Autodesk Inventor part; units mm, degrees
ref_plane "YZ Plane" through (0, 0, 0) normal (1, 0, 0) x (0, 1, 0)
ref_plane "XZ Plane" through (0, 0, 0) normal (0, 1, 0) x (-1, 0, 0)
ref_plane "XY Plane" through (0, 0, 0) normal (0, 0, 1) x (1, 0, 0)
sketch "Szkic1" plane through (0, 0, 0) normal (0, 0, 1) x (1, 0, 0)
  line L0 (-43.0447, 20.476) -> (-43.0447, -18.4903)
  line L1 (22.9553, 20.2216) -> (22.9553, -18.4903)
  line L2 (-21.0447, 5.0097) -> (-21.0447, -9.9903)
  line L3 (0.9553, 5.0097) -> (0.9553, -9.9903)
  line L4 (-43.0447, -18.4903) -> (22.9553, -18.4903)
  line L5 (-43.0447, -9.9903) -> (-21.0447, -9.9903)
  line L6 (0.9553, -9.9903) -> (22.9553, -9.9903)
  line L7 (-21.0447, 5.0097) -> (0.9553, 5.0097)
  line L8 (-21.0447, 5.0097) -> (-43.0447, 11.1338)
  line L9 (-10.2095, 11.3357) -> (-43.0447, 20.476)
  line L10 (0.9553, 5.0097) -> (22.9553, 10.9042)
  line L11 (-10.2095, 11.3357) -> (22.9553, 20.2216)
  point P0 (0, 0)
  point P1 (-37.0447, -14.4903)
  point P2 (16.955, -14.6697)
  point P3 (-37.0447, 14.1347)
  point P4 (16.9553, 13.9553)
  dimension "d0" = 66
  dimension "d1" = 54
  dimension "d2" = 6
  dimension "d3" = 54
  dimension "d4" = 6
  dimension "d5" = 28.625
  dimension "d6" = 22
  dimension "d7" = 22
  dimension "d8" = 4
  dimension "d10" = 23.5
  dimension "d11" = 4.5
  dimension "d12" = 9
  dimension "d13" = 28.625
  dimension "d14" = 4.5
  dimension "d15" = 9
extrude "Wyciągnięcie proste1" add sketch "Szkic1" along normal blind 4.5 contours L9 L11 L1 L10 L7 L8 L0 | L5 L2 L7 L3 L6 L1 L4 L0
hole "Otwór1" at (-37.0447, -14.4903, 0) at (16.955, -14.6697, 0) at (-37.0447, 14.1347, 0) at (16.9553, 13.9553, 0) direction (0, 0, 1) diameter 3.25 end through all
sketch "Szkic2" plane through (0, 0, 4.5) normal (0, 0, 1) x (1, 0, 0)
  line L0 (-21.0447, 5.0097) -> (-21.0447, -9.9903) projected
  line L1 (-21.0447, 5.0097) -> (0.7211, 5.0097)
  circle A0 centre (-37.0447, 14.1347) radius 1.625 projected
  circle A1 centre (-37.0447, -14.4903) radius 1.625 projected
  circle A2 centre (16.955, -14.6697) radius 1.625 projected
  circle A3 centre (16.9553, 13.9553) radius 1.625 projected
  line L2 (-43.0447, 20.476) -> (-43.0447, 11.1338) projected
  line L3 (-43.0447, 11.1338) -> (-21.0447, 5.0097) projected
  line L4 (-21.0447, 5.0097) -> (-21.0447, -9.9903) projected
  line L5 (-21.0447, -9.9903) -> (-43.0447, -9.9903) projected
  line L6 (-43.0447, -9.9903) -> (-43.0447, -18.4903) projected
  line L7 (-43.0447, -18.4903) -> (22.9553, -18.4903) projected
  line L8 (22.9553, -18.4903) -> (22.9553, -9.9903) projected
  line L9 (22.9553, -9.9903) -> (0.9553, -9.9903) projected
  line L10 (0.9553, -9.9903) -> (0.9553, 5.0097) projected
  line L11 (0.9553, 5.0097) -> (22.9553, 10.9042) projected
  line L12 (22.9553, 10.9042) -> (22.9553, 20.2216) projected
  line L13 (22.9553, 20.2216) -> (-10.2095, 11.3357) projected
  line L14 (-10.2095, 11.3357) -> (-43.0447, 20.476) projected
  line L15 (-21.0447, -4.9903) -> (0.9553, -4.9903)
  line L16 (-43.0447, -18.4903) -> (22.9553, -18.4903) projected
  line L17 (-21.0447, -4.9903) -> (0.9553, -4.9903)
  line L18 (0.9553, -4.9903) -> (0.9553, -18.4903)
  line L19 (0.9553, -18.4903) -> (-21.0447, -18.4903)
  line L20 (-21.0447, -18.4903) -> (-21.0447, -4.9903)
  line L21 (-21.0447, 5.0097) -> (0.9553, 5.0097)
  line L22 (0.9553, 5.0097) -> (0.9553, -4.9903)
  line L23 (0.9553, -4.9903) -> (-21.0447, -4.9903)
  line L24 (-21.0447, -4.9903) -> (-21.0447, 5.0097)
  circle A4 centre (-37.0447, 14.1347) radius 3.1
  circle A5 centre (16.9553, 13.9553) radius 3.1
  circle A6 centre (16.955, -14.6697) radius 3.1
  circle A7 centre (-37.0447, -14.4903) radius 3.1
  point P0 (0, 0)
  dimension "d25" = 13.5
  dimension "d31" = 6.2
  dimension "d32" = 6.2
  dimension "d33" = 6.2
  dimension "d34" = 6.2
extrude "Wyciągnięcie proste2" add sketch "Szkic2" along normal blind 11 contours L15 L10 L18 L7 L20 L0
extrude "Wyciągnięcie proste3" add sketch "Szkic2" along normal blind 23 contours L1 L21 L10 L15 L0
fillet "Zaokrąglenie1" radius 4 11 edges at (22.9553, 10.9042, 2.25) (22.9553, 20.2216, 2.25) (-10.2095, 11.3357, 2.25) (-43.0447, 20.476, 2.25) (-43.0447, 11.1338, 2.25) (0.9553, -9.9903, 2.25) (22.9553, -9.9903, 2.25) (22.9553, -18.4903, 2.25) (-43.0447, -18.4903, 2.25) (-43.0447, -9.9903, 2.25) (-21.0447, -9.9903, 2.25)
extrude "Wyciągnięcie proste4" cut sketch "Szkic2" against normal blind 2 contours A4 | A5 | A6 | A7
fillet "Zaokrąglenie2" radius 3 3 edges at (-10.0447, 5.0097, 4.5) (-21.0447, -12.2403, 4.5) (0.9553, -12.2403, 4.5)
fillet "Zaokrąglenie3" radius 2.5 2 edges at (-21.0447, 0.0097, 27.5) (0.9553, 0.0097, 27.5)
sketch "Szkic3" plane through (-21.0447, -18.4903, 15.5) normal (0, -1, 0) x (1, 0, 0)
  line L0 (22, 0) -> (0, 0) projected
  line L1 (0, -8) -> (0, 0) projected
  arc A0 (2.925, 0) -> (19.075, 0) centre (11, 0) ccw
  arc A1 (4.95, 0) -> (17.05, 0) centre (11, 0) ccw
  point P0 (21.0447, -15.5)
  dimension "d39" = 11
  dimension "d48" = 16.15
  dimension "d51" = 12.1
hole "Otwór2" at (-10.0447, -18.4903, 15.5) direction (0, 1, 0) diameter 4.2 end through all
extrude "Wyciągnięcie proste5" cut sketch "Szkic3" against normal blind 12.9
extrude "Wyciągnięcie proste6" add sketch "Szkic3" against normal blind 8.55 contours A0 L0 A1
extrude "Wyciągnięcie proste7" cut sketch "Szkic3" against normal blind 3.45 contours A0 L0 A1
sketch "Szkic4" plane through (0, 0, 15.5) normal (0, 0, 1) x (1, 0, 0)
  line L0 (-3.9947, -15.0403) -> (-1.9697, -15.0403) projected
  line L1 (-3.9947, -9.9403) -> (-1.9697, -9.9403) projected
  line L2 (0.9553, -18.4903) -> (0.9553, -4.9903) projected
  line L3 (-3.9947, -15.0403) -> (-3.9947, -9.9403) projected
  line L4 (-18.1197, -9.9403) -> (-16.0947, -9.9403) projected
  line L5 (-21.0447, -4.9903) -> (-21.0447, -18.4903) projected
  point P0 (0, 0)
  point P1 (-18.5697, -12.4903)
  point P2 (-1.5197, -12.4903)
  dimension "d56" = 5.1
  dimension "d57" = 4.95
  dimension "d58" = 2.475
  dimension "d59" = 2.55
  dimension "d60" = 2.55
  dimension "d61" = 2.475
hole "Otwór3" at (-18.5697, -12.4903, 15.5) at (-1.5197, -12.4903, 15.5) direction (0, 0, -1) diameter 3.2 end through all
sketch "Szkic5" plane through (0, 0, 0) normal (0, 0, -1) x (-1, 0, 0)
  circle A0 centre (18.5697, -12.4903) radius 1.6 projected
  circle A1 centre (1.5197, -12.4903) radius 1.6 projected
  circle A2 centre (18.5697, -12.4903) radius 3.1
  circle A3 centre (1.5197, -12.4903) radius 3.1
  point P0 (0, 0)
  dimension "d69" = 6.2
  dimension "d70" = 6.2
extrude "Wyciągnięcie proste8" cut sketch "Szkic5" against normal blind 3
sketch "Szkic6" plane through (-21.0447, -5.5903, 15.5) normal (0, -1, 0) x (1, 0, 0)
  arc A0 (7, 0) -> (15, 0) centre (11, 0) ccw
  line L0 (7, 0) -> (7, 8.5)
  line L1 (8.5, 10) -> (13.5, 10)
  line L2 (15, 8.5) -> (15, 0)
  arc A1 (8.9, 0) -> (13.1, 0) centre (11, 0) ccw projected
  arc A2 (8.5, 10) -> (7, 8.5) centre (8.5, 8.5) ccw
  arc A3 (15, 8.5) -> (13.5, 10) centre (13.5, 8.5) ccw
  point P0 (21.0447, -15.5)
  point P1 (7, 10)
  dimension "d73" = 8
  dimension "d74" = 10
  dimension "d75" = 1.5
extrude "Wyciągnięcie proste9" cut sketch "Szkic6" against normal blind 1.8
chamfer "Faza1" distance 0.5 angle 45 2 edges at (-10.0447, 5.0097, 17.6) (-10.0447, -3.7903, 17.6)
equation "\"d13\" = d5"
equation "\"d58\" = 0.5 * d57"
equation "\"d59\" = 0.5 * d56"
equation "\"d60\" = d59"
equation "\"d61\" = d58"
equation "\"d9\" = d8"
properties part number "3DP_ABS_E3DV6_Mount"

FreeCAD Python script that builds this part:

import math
import FreeCAD as App
import Part
import Sketcher
Q = App.Units.Quantity


def edges_at(feature, points):
    """Names of the edges that pass closest to the given points."""
    edges = feature.Shape.Edges
    near = lambda p: min(range(len(edges)), key=lambda i: edges[i].distToShape(Part.Vertex(*p))[0])
    return sorted({f"Edge{near(p) + 1}" for p in points})


def add_polygon(sketch, points):
    """Adds a closed chain of lines whose ends are joined by coincident constraints."""
    first, n = sketch.GeometryCount, len(points)
    for a, b in zip(points, points[1:] + points[:1]):
        sketch.addGeometry(Part.LineSegment(App.Vector(*a, 0), App.Vector(*b, 0)), False)
    for i in range(n):
        sketch.addConstraint(Sketcher.Constraint("Coincident", first + i, 2, first + (i + 1) % n, 1))

doc = App.newDocument("Part")
body = doc.addObject("PartDesign::Body", "Body")

# Sketch on XY plane
sketch1 = body.newObject("Sketcher::SketchObject", "Sketch")
sketch1.AttachmentSupport = (doc.getObject("XY_Plane"), [""])
sketch1.MapMode = "FlatFace"
add_polygon(sketch1, [(-10, 11), (-43, 20), (-43, 11), (-21, 5), (-21, -10), (-43, -10), (-43, -18), (23, -18), (23, -10), (1, -10), (1, 5), (23, 11), (23, 20)])  # lines 0-12
sketch1.addConstraint([
    Sketcher.Constraint("Vertical", 1),
    Sketcher.Constraint("Vertical", 3),
    Sketcher.Constraint("Horizontal", 4),
    Sketcher.Constraint("Vertical", 5),
    Sketcher.Constraint("Horizontal", 6),
    Sketcher.Constraint("Vertical", 7),
    Sketcher.Constraint("Horizontal", 8),
    Sketcher.Constraint("Vertical", 9),
    Sketcher.Constraint("Vertical", 11),
    Sketcher.Constraint("Parallel", 0, 2),
    Sketcher.Constraint("Parallel", 10, 12),
    Sketcher.Constraint("Horizontal", 4, 2, 7, 2),
    Sketcher.Constraint("Horizontal", 2, 2, 9, 2),
    Sketcher.Constraint("Vertical", 1, 2, 4, 2),
    Sketcher.Constraint("Vertical", 7, 2, 10, 2),
    Sketcher.Constraint("Equal", 4, 8),
    Sketcher.Constraint("DistanceX", 4, 2, 4, 1, Q("22 mm")),
    Sketcher.Constraint("DistanceX", 6, 1, 6, 2, Q("66 mm")),
    Sketcher.Constraint("DistanceY", 5, 2, 2, 2, Q("23.5 mm")),
    Sketcher.Constraint("DistanceY", 3, 2, 3, 1, Q("15 mm")),
    Sketcher.Constraint("Angle", 10, Q("14.999 deg")),
    Sketcher.Constraint("DistanceY", 1, 2, 1, 1, Q("9.3422 mm")),
    Sketcher.Constraint("DistanceY", 11, 1, 11, 2, Q("9.3174 mm")),
    Sketcher.Constraint("DistanceY", -1, 1, 0, 2, Q("20.476 mm")),
    Sketcher.Constraint("DistanceY", 2, 2, 1, 2, Q("6.124 mm")),
    Sketcher.Constraint("DistanceX", 0, 2, -1, 1, Q("43.0447 mm")),
])
pad1 = body.newObject("PartDesign::Pad", "Pad")
pad1.Profile = sketch1
pad1.Length = 4.5

# Sketch on XY plane
sketch2 = body.newObject("Sketcher::SketchObject", "Sketch001")
sketch2.AttachmentSupport = (doc.getObject("XY_Plane"), [""])
sketch2.MapMode = "FlatFace"
sketch2.addGeometry([
    Part.Circle(App.Vector(-37, -14.5, 0), App.Vector(0, 0, 1), 1.6),
    Part.Circle(App.Vector(17, -14.7, 0), App.Vector(0, 0, 1), 1.6),
    Part.Circle(App.Vector(-37, 14.1, 0), App.Vector(0, 0, 1), 1.6),
    Part.Circle(App.Vector(17, 14, 0), App.Vector(0, 0, 1), 1.6),
], False)
sketch2.addConstraint([
    Sketcher.Constraint("Equal", 0, 1),
    Sketcher.Constraint("Equal", 1, 2),
    Sketcher.Constraint("Equal", 2, 3),
    Sketcher.Constraint("Vertical", 0, 3, 2, 3),
    Sketcher.Constraint("Diameter", 0, Q("3.25 mm")),
    Sketcher.Constraint("DistanceX", 2, 3, 3, 3, Q("54 mm")),
    Sketcher.Constraint("DistanceX", -1, 1, 1, 3, Q("16.955 mm")),
    Sketcher.Constraint("DistanceY", 0, 3, 2, 3, Q("28.625 mm")),
    Sketcher.Constraint("DistanceY", 1, 3, 3, 3, Q("28.625 mm")),
    Sketcher.Constraint("DistanceX", 0, 3, -1, 1, Q("37.0447 mm")),
    Sketcher.Constraint("DistanceY", 0, 3, -1, 1, Q("14.4903 mm")),
    Sketcher.Constraint("DistanceY", 1, 3, -1, 1, Q("14.6697 mm")),
])
doc.recompute()
hole = body.newObject("PartDesign::Hole", "Hole")
hole.Profile = sketch2
hole.ThreadType = "None"
hole.Diameter = 3.25
hole.DepthType = "ThroughAll"
hole.Reversed = True

# Sketch on XY plane
sketch3 = body.newObject("Sketcher::SketchObject", "Sketch002")
sketch3.AttachmentSupport = (doc.getObject("XY_Plane"), [""])
sketch3.MapMode = "FlatFace"
sketch3.AttachmentOffset = App.Placement(App.Vector(0, 0, 4.5), App.Rotation())
add_polygon(sketch3, [(1, -5), (-21, -5), (-21, -18), (1, -18)])  # lines 0-3
sketch3.addConstraint([
    Sketcher.Constraint("Horizontal", 0),
    Sketcher.Constraint("Vertical", 1),
    Sketcher.Constraint("Horizontal", 2),
    Sketcher.Constraint("Vertical", 3),
    Sketcher.Constraint("DistanceY", 1, 2, 1, 1, Q("13.5 mm")),
    Sketcher.Constraint("DistanceX", 0, 2, 0, 1, Q("22 mm")),
    Sketcher.Constraint("DistanceX", 0, 2, -1, 1, Q("21.0447 mm")),
    Sketcher.Constraint("DistanceY", 0, 2, -1, 1, Q("4.9903 mm")),
])
pad2 = body.newObject("PartDesign::Pad", "Pad001")
pad2.Profile = sketch3
pad2.Length = 11

# Sketch on XY plane
sketch4 = body.newObject("Sketcher::SketchObject", "Sketch003")
sketch4.AttachmentSupport = (doc.getObject("XY_Plane"), [""])
sketch4.MapMode = "FlatFace"
sketch4.AttachmentOffset = App.Placement(App.Vector(0, 0, 4.5), App.Rotation())
add_polygon(sketch4, [(1, 5), (-21, 5), (-21, -5), (1, -5)])  # lines 0-3
sketch4.addConstraint([
    Sketcher.Constraint("Horizontal", 0),
    Sketcher.Constraint("Vertical", 1),
    Sketcher.Constraint("Horizontal", 2),
    Sketcher.Constraint("Vertical", 3),
    Sketcher.Constraint("DistanceX", 0, 2, 0, 1, Q("22 mm")),
    Sketcher.Constraint("DistanceY", 1, 2, 1, 1, Q("10 mm")),
    Sketcher.Constraint("DistanceX", 0, 2, -1, 1, Q("21.0447 mm")),
    Sketcher.Constraint("DistanceY", -1, 1, 0, 2, Q("5.0097 mm")),
])
pad3 = body.newObject("PartDesign::Pad", "Pad002")
pad3.Profile = sketch4
pad3.Length = 23
doc.recompute()

fillet = body.newObject("PartDesign::Fillet", "Fillet")
fillet.Base = (pad3, edges_at(pad3, [
    (22.955, 10.904, 2.25),
    (22.955, 20.222, 2.25),
    (-10.21, 11.336, 2.25),
    (-43.045, 20.476, 2.25),
    (-43.045, 11.134, 2.25),
    (0.955, -9.99, 2.25),
    (22.955, -9.99, 2.25),
    (22.955, -18.49, 2.25),
    (-43.045, -18.49, 2.25),
    (-43.045, -9.99, 2.25),
    (-21.045, -9.99, 2.25),
]))
fillet.Radius = 4

# Sketch on XY plane
sketch5 = body.newObject("Sketcher::SketchObject", "Sketch004")
sketch5.AttachmentSupport = (doc.getObject("XY_Plane"), [""])
sketch5.MapMode = "FlatFace"
sketch5.AttachmentOffset = App.Placement(App.Vector(0, 0, 4.5), App.Rotation())
sketch5.addGeometry([
    Part.Circle(App.Vector(-37, 14.1, 0), App.Vector(0, 0, 1), 3.1),  # 0
    Part.Circle(App.Vector(-37, 14.1, 0), App.Vector(0, 0, 1), 1.6),  # 1
    Part.Circle(App.Vector(17, 14, 0), App.Vector(0, 0, 1), 3.1),  # 2
    Part.Circle(App.Vector(17, 14, 0), App.Vector(0, 0, 1), 1.6),  # 3
    Part.Circle(App.Vector(17, -14.7, 0), App.Vector(0, 0, 1), 3.1),  # 4
    Part.Circle(App.Vector(17, -14.7, 0), App.Vector(0, 0, 1), 1.6),  # 5
    Part.Circle(App.Vector(-37, -14.5, 0), App.Vector(0, 0, 1), 3.1),  # 6
    Part.Circle(App.Vector(-37, -14.5, 0), App.Vector(0, 0, 1), 1.6),  # 7
], False)
sketch5.addConstraint([
    Sketcher.Constraint("Coincident", 1, 3, 0, 3),
    Sketcher.Constraint("Coincident", 3, 3, 2, 3),
    Sketcher.Constraint("Coincident", 5, 3, 4, 3),
    Sketcher.Constraint("Coincident", 7, 3, 6, 3),
    Sketcher.Constraint("Equal", 0, 2),
    Sketcher.Constraint("Equal", 1, 3),
    Sketcher.Constraint("Equal", 2, 4),
    Sketcher.Constraint("Equal", 3, 5),
    Sketcher.Constraint("Equal", 4, 6),
    Sketcher.Constraint("Equal", 5, 7),
    Sketcher.Constraint("Vertical", 1, 3, 6, 3),
    Sketcher.Constraint("Diameter", 0, Q("6.2 mm")),
    Sketcher.Constraint("Diameter", 1, Q("3.25 mm")),
    Sketcher.Constraint("DistanceX", 0, 3, 2, 3, Q("54 mm")),
    Sketcher.Constraint("DistanceX", -1, 1, 4, 3, Q("16.955 mm")),
    Sketcher.Constraint("DistanceY", 4, 3, 2, 3, Q("28.625 mm")),
    Sketcher.Constraint("DistanceY", 6, 3, 0, 3, Q("28.625 mm")),
    Sketcher.Constraint("DistanceX", 0, 3, -1, 1, Q("37.0447 mm")),
    Sketcher.Constraint("DistanceY", -1, 1, 0, 3, Q("14.1347 mm")),
    Sketcher.Constraint("DistanceY", -1, 1, 2, 3, Q("13.9553 mm")),
])
pocket1 = body.newObject("PartDesign::Pocket", "Pocket")
pocket1.Profile = sketch5
pocket1.Length = 2
doc.recompute()

fillet2 = body.newObject("PartDesign::Fillet", "Fillet001")
fillet2.Base = (pocket1, edges_at(pocket1, [(-10.045, 5.01, 4.5), (-21.045, -12.24, 4.5), (0.955, -12.24, 4.5)]))
fillet2.Radius = 3
doc.recompute()

fillet3 = body.newObject("PartDesign::Fillet", "Fillet002")
fillet3.Base = (fillet2, edges_at(fillet2, [(-21.045, 0.01, 27.5), (0.955, 0.01, 27.5)]))
fillet3.Radius = 2.5

# Sketch on XZ plane
sketch6 = body.newObject("Sketcher::SketchObject", "Sketch005")
sketch6.AttachmentSupport = (doc.getObject("XZ_Plane"), [""])
sketch6.MapMode = "FlatFace"
sketch6.AttachmentOffset = App.Placement(App.Vector(0, 0, 18.4903), App.Rotation())
sketch6.addGeometry(Part.Circle(App.Vector(-10, 15.5, 0), App.Vector(0, 0, 1), 2.1), False)
sketch6.addConstraint([
    Sketcher.Constraint("Diameter", 0, Q("4.2 mm")),
    Sketcher.Constraint("DistanceY", -1, 1, 0, 3, Q("15.5 mm")),
    Sketcher.Constraint("DistanceX", 0, 3, -1, 1, Q("10.0447 mm")),
])
doc.recompute()
hole2 = body.newObject("PartDesign::Hole", "Hole001")
hole2.Profile = sketch6
hole2.ThreadType = "None"
hole2.Diameter = 4.2
hole2.DepthType = "ThroughAll"

# Sketch on XZ plane
sketch7 = body.newObject("Sketcher::SketchObject", "Sketch006")
sketch7.AttachmentSupport = (doc.getObject("XZ_Plane"), [""])
sketch7.MapMode = "FlatFace"
sketch7.AttachmentOffset = App.Placement(App.Vector(0, 0, 18.4903), App.Rotation())
sketch7.addGeometry([
    Part.ArcOfCircle(Part.Circle(App.Vector(-10, 16, 0), App.Vector(0, 0, 1), 8), math.radians(180), math.radians(360)),
    Part.LineSegment(App.Vector(-2, 16, 0), App.Vector(-18, 16, 0)),
], False)
sketch7.addConstraint([
    Sketcher.Constraint("Coincident", 0, 1, 1, 2),
    Sketcher.Constraint("Coincident", 1, 1, 0, 2),
    Sketcher.Constraint("Horizontal", 1),
    Sketcher.Constraint("Radius", 0, Q("8.075 mm")),
    Sketcher.Constraint("DistanceY", -1, 1, 0, 3, Q("15.5 mm")),
    Sketcher.Constraint("DistanceY", -1, 1, 0, 1, Q("15.5 mm")),
    Sketcher.Constraint("DistanceX", 0, 3, -1, 1, Q("10.0447 mm")),
])
pocket2 = body.newObject("PartDesign::Pocket", "Pocket001")
pocket2.Profile = sketch7
pocket2.Length = 12.9

# Sketch on XZ plane
sketch8 = body.newObject("Sketcher::SketchObject", "Sketch007")
sketch8.AttachmentSupport = (doc.getObject("XZ_Plane"), [""])
sketch8.MapMode = "FlatFace"
sketch8.AttachmentOffset = App.Placement(App.Vector(0, 0, 18.4903), App.Rotation())
sketch8.addGeometry([
    Part.ArcOfCircle(Part.Circle(App.Vector(-10, 15.5, 0), App.Vector(0, 0, 1), 8.1), math.radians(180), math.radians(360)),
    Part.LineSegment(App.Vector(-2, 15.5, 0), App.Vector(-4, 15.5, 0)),
    Part.ArcOfCircle(Part.Circle(App.Vector(-10, 15.5, 0), App.Vector(0, 0, 1), 6), math.radians(180), math.radians(360)),
    Part.LineSegment(App.Vector(-16.1, 15.5, 0), App.Vector(-18.1, 15.5, 0)),
], False)
sketch8.addConstraint([
    Sketcher.Constraint("Coincident", 0, 2, 1, 1),
    Sketcher.Constraint("Coincident", 1, 2, 2, 2),
    Sketcher.Constraint("Coincident", 2, 1, 3, 1),
    Sketcher.Constraint("Coincident", 3, 2, 0, 1),
    Sketcher.Constraint("Horizontal", 1),
    Sketcher.Constraint("Horizontal", 3),
    Sketcher.Constraint("Coincident", 2, 3, 0, 3),
    Sketcher.Constraint("Horizontal", 2, 3, 0, 2),
    Sketcher.Constraint("Horizontal", 1, 2, 2, 1),
    Sketcher.Constraint("Radius", 2, Q("6.05 mm")),
    Sketcher.Constraint("Radius", 0, Q("8.075 mm")),
    Sketcher.Constraint("DistanceY", -1, 1, 0, 3, Q("15.5 mm")),
    Sketcher.Constraint("DistanceX", 0, 3, -1, 1, Q("10.0447 mm")),
])
pad4 = body.newObject("PartDesign::Pad", "Pad003")
pad4.Profile = sketch8
pad4.Length = 8.55
pad4.Reversed = True

# Sketch on XZ plane
sketch9 = body.newObject("Sketcher::SketchObject", "Sketch008")
sketch9.AttachmentSupport = (doc.getObject("XZ_Plane"), [""])
sketch9.MapMode = "FlatFace"
sketch9.AttachmentOffset = App.Placement(App.Vector(0, 0, 18.4903), App.Rotation())
sketch9.addGeometry([
    Part.ArcOfCircle(Part.Circle(App.Vector(-10, 15.5, 0), App.Vector(0, 0, 1), 8.1), math.radians(180), math.radians(360)),
    Part.LineSegment(App.Vector(-2, 15.5, 0), App.Vector(-4, 15.5, 0)),
    Part.ArcOfCircle(Part.Circle(App.Vector(-10, 15.5, 0), App.Vector(0, 0, 1), 6), math.radians(180), math.radians(360)),
    Part.LineSegment(App.Vector(-16.1, 15.5, 0), App.Vector(-18.1, 15.5, 0)),
], False)
sketch9.addConstraint([
    Sketcher.Constraint("Coincident", 0, 2, 1, 1),
    Sketcher.Constraint("Coincident", 1, 2, 2, 2),
    Sketcher.Constraint("Coincident", 2, 1, 3, 1),
    Sketcher.Constraint("Coincident", 3, 2, 0, 1),
    Sketcher.Constraint("Horizontal", 1),
    Sketcher.Constraint("Horizontal", 3),
    Sketcher.Constraint("Coincident", 2, 3, 0, 3),
    Sketcher.Constraint("Horizontal", 2, 3, 0, 2),
    Sketcher.Constraint("Horizontal", 1, 2, 2, 1),
    Sketcher.Constraint("Radius", 2, Q("6.05 mm")),
    Sketcher.Constraint("Radius", 0, Q("8.075 mm")),
    Sketcher.Constraint("DistanceY", -1, 1, 0, 3, Q("15.5 mm")),
    Sketcher.Constraint("DistanceX", 0, 3, -1, 1, Q("10.0447 mm")),
])
pocket3 = body.newObject("PartDesign::Pocket", "Pocket002")
pocket3.Profile = sketch9
pocket3.Length = 3.45

# Sketch on XY plane
sketch10 = body.newObject("Sketcher::SketchObject", "Sketch009")
sketch10.AttachmentSupport = (doc.getObject("XY_Plane"), [""])
sketch10.MapMode = "FlatFace"
sketch10.AttachmentOffset = App.Placement(App.Vector(0, 0, 15.5), App.Rotation())
sketch10.addGeometry([
    Part.Circle(App.Vector(-18.6, -12.5, 0), App.Vector(0, 0, 1), 1.6),
    Part.Circle(App.Vector(-1.5, -12.5, 0), App.Vector(0, 0, 1), 1.6),
], False)
sketch10.addConstraint([
    Sketcher.Constraint("Equal", 0, 1),
    Sketcher.Constraint("Horizontal", 0, 3, 1, 3),
    Sketcher.Constraint("Diameter", 0, Q("3.2 mm")),
    Sketcher.Constraint("DistanceX", 0, 3, 1, 3, Q("17.05 mm")),
    Sketcher.Constraint("DistanceX", 0, 3, -1, 1, Q("18.5697 mm")),
    Sketcher.Constraint("DistanceY", 0, 3, -1, 1, Q("12.4903 mm")),
])
doc.recompute()
hole3 = body.newObject("PartDesign::Hole", "Hole002")
hole3.Profile = sketch10
hole3.ThreadType = "None"
hole3.Diameter = 3.2
hole3.DepthType = "ThroughAll"

# Sketch on XY plane
sketch11 = body.newObject("Sketcher::SketchObject", "Sketch010")
sketch11.AttachmentSupport = (doc.getObject("XY_Plane"), [""])
sketch11.MapMode = "FlatFace"
sketch11.addGeometry([
    Part.Circle(App.Vector(-18.6, -12.5, 0), App.Vector(0, 0, 1), 3.1),
    Part.Circle(App.Vector(-18.6, -12.5, 0), App.Vector(0, 0, 1), 1.6),
    Part.Circle(App.Vector(-1.5, -12.5, 0), App.Vector(0, 0, 1), 3.1),
    Part.Circle(App.Vector(-1.5, -12.5, 0), App.Vector(0, 0, 1), 1.6),
], False)
sketch11.addConstraint([
    Sketcher.Constraint("Coincident", 1, 3, 0, 3),
    Sketcher.Constraint("Coincident", 3, 3, 2, 3),
    Sketcher.Constraint("Equal", 0, 2),
    Sketcher.Constraint("Equal", 1, 3),
    Sketcher.Constraint("Horizontal", 1, 3, 2, 3),
    Sketcher.Constraint("Diameter", 0, Q("6.2 mm")),
    Sketcher.Constraint("Diameter", 1, Q("3.2 mm")),
    Sketcher.Constraint("DistanceX", 0, 3, 2, 3, Q("17.05 mm")),
    Sketcher.Constraint("DistanceX", 0, 3, -1, 1, Q("18.5697 mm")),
    Sketcher.Constraint("DistanceY", 0, 3, -1, 1, Q("12.4903 mm")),
])
pocket4 = body.newObject("PartDesign::Pocket", "Pocket003")
pocket4.Profile = sketch11
pocket4.Length = 3
pocket4.Reversed = True

# Sketch on XZ plane
sketch12 = body.newObject("Sketcher::SketchObject", "Sketch011")
sketch12.AttachmentSupport = (doc.getObject("XZ_Plane"), [""])
sketch12.MapMode = "FlatFace"
sketch12.AttachmentOffset = App.Placement(App.Vector(0, 0, 5.5903), App.Rotation())
sketch12.addGeometry([
    Part.LineSegment(App.Vector(-14, 24, 0), App.Vector(-14, 15.5, 0)),  # 0
    Part.ArcOfCircle(Part.Circle(App.Vector(-10, 15.5, 0), App.Vector(0, 0, 1), 4), math.radians(180), math.radians(360)),  # 1
    Part.LineSegment(App.Vector(-6, 15.5, 0), App.Vector(-6, 24, 0)),  # 2
    Part.ArcOfCircle(Part.Circle(App.Vector(-7.5, 24, 0), App.Vector(0, 0, 1), 1.5), math.radians(0), math.radians(90)),  # 3
    Part.LineSegment(App.Vector(-7.5, 25.5, 0), App.Vector(-12.5, 25.5, 0)),  # 4
    Part.ArcOfCircle(Part.Circle(App.Vector(-12.5, 24, 0), App.Vector(0, 0, 1), 1.5), math.radians(90), math.radians(180)),  # 5
], False)
sketch12.addConstraint([
    Sketcher.Constraint("Tangent", 0, 2, 1, 1),
    Sketcher.Constraint("Tangent", 1, 2, 2, 1),
    Sketcher.Constraint("Tangent", 2, 2, 3, 1),
    Sketcher.Constraint("Tangent", 3, 2, 4, 1),
    Sketcher.Constraint("Tangent", 4, 2, 5, 1),
    Sketcher.Constraint("Tangent", 5, 2, 0, 1),
    Sketcher.Constraint("Vertical", 0),
    Sketcher.Constraint("Vertical", 2),
    Sketcher.Constraint("Horizontal", 4),
    Sketcher.Constraint("Equal", 3, 5),
    Sketcher.Constraint("Radius", 1, Q("4 mm")),
    Sketcher.Constraint("Radius", 3, Q("1.5 mm")),
    Sketcher.Constraint("DistanceY", 1, 2, 3, 2, Q("10 mm")),
    Sketcher.Constraint("DistanceY", -1, 1, 3, 3, Q("24 mm")),
    Sketcher.Constraint("DistanceX", 1, 3, -1, 1, Q("10.0447 mm")),
])
pocket5 = body.newObject("PartDesign::Pocket", "Pocket004")
pocket5.Profile = sketch12
pocket5.Length = 1.8
doc.recompute()

chamfer = body.newObject("PartDesign::Chamfer", "Chamfer")
chamfer.Base = (pocket5, edges_at(pocket5, [(-10.045, 5.01, 17.6), (-10.045, -3.79, 17.6)]))
chamfer.Size = 0.5

doc.recompute()
